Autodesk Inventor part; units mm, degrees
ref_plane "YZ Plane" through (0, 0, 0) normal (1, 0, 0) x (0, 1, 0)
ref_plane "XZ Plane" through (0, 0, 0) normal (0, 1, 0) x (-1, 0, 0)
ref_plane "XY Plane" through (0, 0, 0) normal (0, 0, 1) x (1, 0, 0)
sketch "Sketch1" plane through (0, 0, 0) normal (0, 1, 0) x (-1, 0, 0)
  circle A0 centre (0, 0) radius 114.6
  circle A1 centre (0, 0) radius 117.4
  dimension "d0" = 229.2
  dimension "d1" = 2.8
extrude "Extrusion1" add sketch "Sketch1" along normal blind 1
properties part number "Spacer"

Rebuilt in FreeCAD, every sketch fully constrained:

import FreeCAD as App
import Part
import Sketcher

V = App.Vector

doc = App.newDocument("Part")
params = doc.addObject("Spreadsheet::Sheet", "Params")
for row, (alias, value) in enumerate([
    ("sketch1_diameter", "229.2 mm"),
    ("sketch1_diameter2", "234.8 mm"),
    ("pad1_length", "1 mm"),
], start=1):
    params.set(f"A{row}", alias)
    params.set(f"B{row}", "=" + value)
    params.setAlias(f"B{row}", alias)

body = doc.addObject("PartDesign::Body", "Body")

sketch1 = body.newObject("Sketcher::SketchObject", "Sketch")
sketch1.AttachmentSupport = (doc.getObject("XZ_Plane"), [""])
sketch1.MapMode = "FlatFace"
sketch1.addGeometry([
    Part.Circle(V(0, 0, 0), V(0, 0, 1), 117),
    Part.Circle(V(0, 0, 0), V(0, 0, 1), 115),
], False)
sketch1.addConstraint([
    Sketcher.Constraint("Coincident", 0, 3, -1, 1),
    Sketcher.Constraint("Coincident", 1, 3, -1, 1),
    Sketcher.Constraint("Diameter", 1, 229.2),
    Sketcher.Constraint("Diameter", 0, 234.8),
])
sketch1.setExpression("Constraints[2]", "Params.sketch1_diameter")
sketch1.setExpression("Constraints[3]", "Params.sketch1_diameter2")
pad1 = body.newObject("PartDesign::Pad", "Pad")
pad1.Profile = sketch1
pad1.setExpression("Length", "Params.pad1_length")
pad1.Reversed = True

doc.recompute()
